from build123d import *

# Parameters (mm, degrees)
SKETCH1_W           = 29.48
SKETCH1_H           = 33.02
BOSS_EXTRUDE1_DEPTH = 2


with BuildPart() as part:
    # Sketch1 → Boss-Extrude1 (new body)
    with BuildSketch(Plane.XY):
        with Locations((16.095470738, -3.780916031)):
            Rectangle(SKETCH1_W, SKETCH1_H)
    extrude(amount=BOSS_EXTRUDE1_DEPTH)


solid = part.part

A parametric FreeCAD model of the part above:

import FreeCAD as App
import Part
import Sketcher

V = App.Vector
Q = App.Units.Quantity

doc = App.newDocument("Part")
body = doc.addObject("PartDesign::Body", "Body")

# Sketch on XY plane
sketch1 = body.newObject("Sketcher::SketchObject", "Sketch")
sketch1.AttachmentSupport = (doc.getObject("XY_Plane"), [""])
sketch1.MapMode = "FlatFace"
sketch1.addGeometry(Part.LineSegment(V(1, 13, 0), V(1, -20, 0)), False)
sketch1.addGeometry(Part.LineSegment(V(1, -20, 0), V(31, -20, 0)), False)
sketch1.addGeometry(Part.LineSegment(V(31, -20, 0), V(31, 13, 0)), False)
sketch1.addGeometry(Part.LineSegment(V(31, 13, 0), V(1, 13, 0)), False)
sketch1.addConstraint(Sketcher.Constraint("Coincident", 0, 2, 1, 1))
sketch1.addConstraint(Sketcher.Constraint("Coincident", 1, 2, 2, 1))
sketch1.addConstraint(Sketcher.Constraint("Coincident", 2, 2, 3, 1))
sketch1.addConstraint(Sketcher.Constraint("Coincident", 3, 2, 0, 1))
sketch1.addConstraint(Sketcher.Constraint("Vertical", 0))
sketch1.addConstraint(Sketcher.Constraint("Horizontal", 1))
sketch1.addConstraint(Sketcher.Constraint("Vertical", 2))
sketch1.addConstraint(Sketcher.Constraint("Horizontal", 3))
sketch1.addConstraint(Sketcher.Constraint("DistanceX", 1, 1, 1, 2, Q("29.48 mm")))
sketch1.addConstraint(Sketcher.Constraint("DistanceY", 0, 2, 0, 1, Q("33.02 mm")))
sketch1.addConstraint(Sketcher.Constraint("DistanceX", -1, 1, 0, 2, Q("1.355471 mm")))
sketch1.addConstraint(Sketcher.Constraint("DistanceY", 0, 2, -1, 1, Q("20.290916 mm")))
pad1 = body.newObject("PartDesign::Pad", "Pad")
pad1.Profile = sketch1
pad1.Length = 2

doc.recompute()
